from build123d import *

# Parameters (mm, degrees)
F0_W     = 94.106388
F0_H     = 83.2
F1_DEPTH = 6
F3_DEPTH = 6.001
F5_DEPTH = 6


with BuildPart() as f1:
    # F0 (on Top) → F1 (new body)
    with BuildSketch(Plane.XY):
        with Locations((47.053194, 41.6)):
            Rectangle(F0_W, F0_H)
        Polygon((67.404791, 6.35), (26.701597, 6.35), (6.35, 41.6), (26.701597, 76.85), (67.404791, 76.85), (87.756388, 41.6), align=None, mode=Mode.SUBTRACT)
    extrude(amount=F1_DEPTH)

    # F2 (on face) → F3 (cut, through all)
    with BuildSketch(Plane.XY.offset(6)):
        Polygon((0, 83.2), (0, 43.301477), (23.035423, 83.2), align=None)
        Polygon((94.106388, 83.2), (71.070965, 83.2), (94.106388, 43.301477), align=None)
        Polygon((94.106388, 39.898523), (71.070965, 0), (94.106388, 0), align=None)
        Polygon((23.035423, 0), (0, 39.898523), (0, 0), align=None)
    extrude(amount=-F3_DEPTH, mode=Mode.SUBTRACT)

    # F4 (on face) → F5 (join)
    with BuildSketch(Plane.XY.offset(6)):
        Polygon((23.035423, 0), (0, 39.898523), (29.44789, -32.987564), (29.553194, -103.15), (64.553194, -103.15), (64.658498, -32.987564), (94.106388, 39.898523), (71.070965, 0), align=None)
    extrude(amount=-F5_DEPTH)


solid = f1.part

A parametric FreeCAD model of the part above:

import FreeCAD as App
import Part
import Sketcher
from FreeCAD import Vector
Q = App.Units.Quantity


def add_polygon(sketch, points):
    """Adds a closed chain of lines whose ends are joined by coincident constraints."""
    first, n = sketch.GeometryCount, len(points)
    for a, b in zip(points, points[1:] + points[:1]):
        sketch.addGeometry(Part.LineSegment(App.Vector(*a, 0), App.Vector(*b, 0)), False)
    for i in range(n):
        sketch.addConstraint(Sketcher.Constraint("Coincident", first + i, 2, first + (i + 1) % n, 1))

doc = App.newDocument("Part")
body = doc.addObject("PartDesign::Body", "Body")

sketch1 = body.newObject("Sketcher::SketchObject", "Sketch")
sketch1.AttachmentSupport = (doc.getObject("XY_Plane"), [""])
sketch1.MapMode = "FlatFace"
add_polygon(sketch1, [(0, 83), (0, 0), (94, 0), (94, 83)])
add_polygon(sketch1, [(88, 42), (67, 6), (27, 6), (6, 42), (27, 77), (67, 77)])
sketch1.addConstraint(Sketcher.Constraint("Vertical", 0))
sketch1.addConstraint(Sketcher.Constraint("Horizontal", 1))
sketch1.addConstraint(Sketcher.Constraint("Vertical", 2))
sketch1.addConstraint(Sketcher.Constraint("Horizontal", 3))
sketch1.addConstraint(Sketcher.Constraint("Horizontal", 5))
sketch1.addConstraint(Sketcher.Constraint("Horizontal", 8))
sketch1.addConstraint(Sketcher.Constraint("Coincident", 0, 2, -1, 1))
sketch1.addConstraint(Sketcher.Constraint("Parallel", 4, 7))
sketch1.addConstraint(Sketcher.Constraint("Parallel", 6, 9))
sketch1.addConstraint(Sketcher.Constraint("Horizontal", 6, 2, 9, 2))
sketch1.addConstraint(Sketcher.Constraint("Vertical", 5, 2, 7, 2))
sketch1.addConstraint(Sketcher.Constraint("Vertical", 4, 2, 8, 2))
sketch1.addConstraint(Sketcher.Constraint("Angle", 4, Q("-120 deg")))
sketch1.addConstraint(Sketcher.Constraint("DistanceY", 0, 2, 0, 1, 83.2))
sketch1.addConstraint(Sketcher.Constraint("DistanceY", -1, 1, 6, 2, 41.6))
sketch1.addConstraint(Sketcher.Constraint("DistanceY", 5, 2, 7, 2, 70.5))
sketch1.addConstraint(Sketcher.Constraint("DistanceX", -1, 1, 6, 2, 6.35))
sketch1.addConstraint(Sketcher.Constraint("DistanceX", 9, 2, 1, 2, 6.35))
sketch1.addConstraint(Sketcher.Constraint("DistanceX", 1, 1, 1, 2, 94.106388))
pad1 = body.newObject("PartDesign::Pad", "Pad")
pad1.Profile = sketch1
pad1.Length = 6

sketch2 = body.newObject("Sketcher::SketchObject", "Sketch001")
sketch2.AttachmentSupport = (doc.getObject("XY_Plane"), [""])
sketch2.MapMode = "FlatFace"
sketch2.AttachmentOffset = App.Placement(Vector(0, 0, 6), App.Rotation())
add_polygon(sketch2, [(0, 83), (0, 43), (23, 83)])
add_polygon(sketch2, [(94, 83), (71, 83), (94, 43)])
add_polygon(sketch2, [(94, 40), (71, 0), (94, 0)])
add_polygon(sketch2, [(23, 0), (0, 40), (0, 0)])
sketch2.addConstraint(Sketcher.Constraint("Vertical", 0))
sketch2.addConstraint(Sketcher.Constraint("Horizontal", 2))
sketch2.addConstraint(Sketcher.Constraint("Horizontal", 3))
sketch2.addConstraint(Sketcher.Constraint("Vertical", 5))
sketch2.addConstraint(Sketcher.Constraint("Horizontal", 7))
sketch2.addConstraint(Sketcher.Constraint("Vertical", 8))
sketch2.addConstraint(Sketcher.Constraint("Vertical", 10))
sketch2.addConstraint(Sketcher.Constraint("Horizontal", 11))
sketch2.addConstraint(Sketcher.Constraint("Coincident", 10, 2, -1, 1))
sketch2.addConstraint(Sketcher.Constraint("PointOnObject", 0, 2, -2))
sketch2.addConstraint(Sketcher.Constraint("PointOnObject", 6, 2, -1))
sketch2.addConstraint(Sketcher.Constraint("Parallel", 1, 6))
sketch2.addConstraint(Sketcher.Constraint("Parallel", 4, 9))
sketch2.addConstraint(Sketcher.Constraint("Horizontal", 2, 2, 3, 2))
sketch2.addConstraint(Sketcher.Constraint("Horizontal", 0, 2, 4, 2))
sketch2.addConstraint(Sketcher.Constraint("Horizontal", 8, 2, 9, 2))
sketch2.addConstraint(Sketcher.Constraint("Vertical", 3, 2, 6, 2))
sketch2.addConstraint(Sketcher.Constraint("Vertical", 5, 2, 7, 2))
sketch2.addConstraint(Sketcher.Constraint("Vertical", 1, 2, 11, 2))
sketch2.addConstraint(Sketcher.Constraint("Angle", 1, Q("60 deg")))
sketch2.addConstraint(Sketcher.Constraint("DistanceY", -1, 1, 1, 2, 83.2))
sketch2.addConstraint(Sketcher.Constraint("DistanceX", 2, 2, 2, 1, 23.035423))
sketch2.addConstraint(Sketcher.Constraint("DistanceX", -1, 1, 3, 2, 71.070965))
pocket1 = body.newObject("PartDesign::Pocket", "Pocket")
pocket1.Profile = sketch2
pocket1.Type = "ThroughAll"

sketch3 = body.newObject("Sketcher::SketchObject", "Sketch002")
sketch3.AttachmentSupport = (doc.getObject("XY_Plane"), [""])
sketch3.MapMode = "FlatFace"
sketch3.AttachmentOffset = App.Placement(Vector(0, 0, 6), App.Rotation())
add_polygon(sketch3, [(23, 0), (0, 40), (29, -33), (30, -103), (65, -103), (65, -33), (94, 40), (71, 0)])
sketch3.addConstraint(Sketcher.Constraint("Horizontal", 3))
sketch3.addConstraint(Sketcher.Constraint("Horizontal", 7))
sketch3.addConstraint(Sketcher.Constraint("PointOnObject", 0, 2, -2))
sketch3.addConstraint(Sketcher.Constraint("PointOnObject", 6, 2, -1))
sketch3.addConstraint(Sketcher.Constraint("Horizontal", 1, 2, 4, 2))
sketch3.addConstraint(Sketcher.Constraint("Horizontal", 0, 2, 5, 2))
sketch3.addConstraint(Sketcher.Constraint("Equal", 1, 5))
sketch3.addConstraint(Sketcher.Constraint("Equal", 0, 6))
sketch3.addConstraint(Sketcher.Constraint("DistanceX", 3, 1, 3, 2, 35.0))
sketch3.addConstraint(Sketcher.Constraint("Angle", 0, Q("120 deg")))
sketch3.addConstraint(Sketcher.Constraint("Angle", 1, Q("-68 deg")))
sketch3.addConstraint(Sketcher.Constraint("DistanceY", 2, 2, -1, 1, 103.15))
sketch3.addConstraint(Sketcher.Constraint("DistanceX", 7, 2, 7, 1, 48.035542))
sketch3.addConstraint(Sketcher.Constraint("DistanceX", -1, 1, 1, 2, 29.44789))
sketch3.addConstraint(Sketcher.Constraint("DistanceX", 3, 2, 6, 2, 6.517771))
sketch3.addConstraint(Sketcher.Constraint("Distance", 0, 46.070846))
pad2 = body.newObject("PartDesign::Pad", "Pad001")
pad2.Profile = sketch3
pad2.Length = 6
pad2.Reversed = True

doc.recompute()
